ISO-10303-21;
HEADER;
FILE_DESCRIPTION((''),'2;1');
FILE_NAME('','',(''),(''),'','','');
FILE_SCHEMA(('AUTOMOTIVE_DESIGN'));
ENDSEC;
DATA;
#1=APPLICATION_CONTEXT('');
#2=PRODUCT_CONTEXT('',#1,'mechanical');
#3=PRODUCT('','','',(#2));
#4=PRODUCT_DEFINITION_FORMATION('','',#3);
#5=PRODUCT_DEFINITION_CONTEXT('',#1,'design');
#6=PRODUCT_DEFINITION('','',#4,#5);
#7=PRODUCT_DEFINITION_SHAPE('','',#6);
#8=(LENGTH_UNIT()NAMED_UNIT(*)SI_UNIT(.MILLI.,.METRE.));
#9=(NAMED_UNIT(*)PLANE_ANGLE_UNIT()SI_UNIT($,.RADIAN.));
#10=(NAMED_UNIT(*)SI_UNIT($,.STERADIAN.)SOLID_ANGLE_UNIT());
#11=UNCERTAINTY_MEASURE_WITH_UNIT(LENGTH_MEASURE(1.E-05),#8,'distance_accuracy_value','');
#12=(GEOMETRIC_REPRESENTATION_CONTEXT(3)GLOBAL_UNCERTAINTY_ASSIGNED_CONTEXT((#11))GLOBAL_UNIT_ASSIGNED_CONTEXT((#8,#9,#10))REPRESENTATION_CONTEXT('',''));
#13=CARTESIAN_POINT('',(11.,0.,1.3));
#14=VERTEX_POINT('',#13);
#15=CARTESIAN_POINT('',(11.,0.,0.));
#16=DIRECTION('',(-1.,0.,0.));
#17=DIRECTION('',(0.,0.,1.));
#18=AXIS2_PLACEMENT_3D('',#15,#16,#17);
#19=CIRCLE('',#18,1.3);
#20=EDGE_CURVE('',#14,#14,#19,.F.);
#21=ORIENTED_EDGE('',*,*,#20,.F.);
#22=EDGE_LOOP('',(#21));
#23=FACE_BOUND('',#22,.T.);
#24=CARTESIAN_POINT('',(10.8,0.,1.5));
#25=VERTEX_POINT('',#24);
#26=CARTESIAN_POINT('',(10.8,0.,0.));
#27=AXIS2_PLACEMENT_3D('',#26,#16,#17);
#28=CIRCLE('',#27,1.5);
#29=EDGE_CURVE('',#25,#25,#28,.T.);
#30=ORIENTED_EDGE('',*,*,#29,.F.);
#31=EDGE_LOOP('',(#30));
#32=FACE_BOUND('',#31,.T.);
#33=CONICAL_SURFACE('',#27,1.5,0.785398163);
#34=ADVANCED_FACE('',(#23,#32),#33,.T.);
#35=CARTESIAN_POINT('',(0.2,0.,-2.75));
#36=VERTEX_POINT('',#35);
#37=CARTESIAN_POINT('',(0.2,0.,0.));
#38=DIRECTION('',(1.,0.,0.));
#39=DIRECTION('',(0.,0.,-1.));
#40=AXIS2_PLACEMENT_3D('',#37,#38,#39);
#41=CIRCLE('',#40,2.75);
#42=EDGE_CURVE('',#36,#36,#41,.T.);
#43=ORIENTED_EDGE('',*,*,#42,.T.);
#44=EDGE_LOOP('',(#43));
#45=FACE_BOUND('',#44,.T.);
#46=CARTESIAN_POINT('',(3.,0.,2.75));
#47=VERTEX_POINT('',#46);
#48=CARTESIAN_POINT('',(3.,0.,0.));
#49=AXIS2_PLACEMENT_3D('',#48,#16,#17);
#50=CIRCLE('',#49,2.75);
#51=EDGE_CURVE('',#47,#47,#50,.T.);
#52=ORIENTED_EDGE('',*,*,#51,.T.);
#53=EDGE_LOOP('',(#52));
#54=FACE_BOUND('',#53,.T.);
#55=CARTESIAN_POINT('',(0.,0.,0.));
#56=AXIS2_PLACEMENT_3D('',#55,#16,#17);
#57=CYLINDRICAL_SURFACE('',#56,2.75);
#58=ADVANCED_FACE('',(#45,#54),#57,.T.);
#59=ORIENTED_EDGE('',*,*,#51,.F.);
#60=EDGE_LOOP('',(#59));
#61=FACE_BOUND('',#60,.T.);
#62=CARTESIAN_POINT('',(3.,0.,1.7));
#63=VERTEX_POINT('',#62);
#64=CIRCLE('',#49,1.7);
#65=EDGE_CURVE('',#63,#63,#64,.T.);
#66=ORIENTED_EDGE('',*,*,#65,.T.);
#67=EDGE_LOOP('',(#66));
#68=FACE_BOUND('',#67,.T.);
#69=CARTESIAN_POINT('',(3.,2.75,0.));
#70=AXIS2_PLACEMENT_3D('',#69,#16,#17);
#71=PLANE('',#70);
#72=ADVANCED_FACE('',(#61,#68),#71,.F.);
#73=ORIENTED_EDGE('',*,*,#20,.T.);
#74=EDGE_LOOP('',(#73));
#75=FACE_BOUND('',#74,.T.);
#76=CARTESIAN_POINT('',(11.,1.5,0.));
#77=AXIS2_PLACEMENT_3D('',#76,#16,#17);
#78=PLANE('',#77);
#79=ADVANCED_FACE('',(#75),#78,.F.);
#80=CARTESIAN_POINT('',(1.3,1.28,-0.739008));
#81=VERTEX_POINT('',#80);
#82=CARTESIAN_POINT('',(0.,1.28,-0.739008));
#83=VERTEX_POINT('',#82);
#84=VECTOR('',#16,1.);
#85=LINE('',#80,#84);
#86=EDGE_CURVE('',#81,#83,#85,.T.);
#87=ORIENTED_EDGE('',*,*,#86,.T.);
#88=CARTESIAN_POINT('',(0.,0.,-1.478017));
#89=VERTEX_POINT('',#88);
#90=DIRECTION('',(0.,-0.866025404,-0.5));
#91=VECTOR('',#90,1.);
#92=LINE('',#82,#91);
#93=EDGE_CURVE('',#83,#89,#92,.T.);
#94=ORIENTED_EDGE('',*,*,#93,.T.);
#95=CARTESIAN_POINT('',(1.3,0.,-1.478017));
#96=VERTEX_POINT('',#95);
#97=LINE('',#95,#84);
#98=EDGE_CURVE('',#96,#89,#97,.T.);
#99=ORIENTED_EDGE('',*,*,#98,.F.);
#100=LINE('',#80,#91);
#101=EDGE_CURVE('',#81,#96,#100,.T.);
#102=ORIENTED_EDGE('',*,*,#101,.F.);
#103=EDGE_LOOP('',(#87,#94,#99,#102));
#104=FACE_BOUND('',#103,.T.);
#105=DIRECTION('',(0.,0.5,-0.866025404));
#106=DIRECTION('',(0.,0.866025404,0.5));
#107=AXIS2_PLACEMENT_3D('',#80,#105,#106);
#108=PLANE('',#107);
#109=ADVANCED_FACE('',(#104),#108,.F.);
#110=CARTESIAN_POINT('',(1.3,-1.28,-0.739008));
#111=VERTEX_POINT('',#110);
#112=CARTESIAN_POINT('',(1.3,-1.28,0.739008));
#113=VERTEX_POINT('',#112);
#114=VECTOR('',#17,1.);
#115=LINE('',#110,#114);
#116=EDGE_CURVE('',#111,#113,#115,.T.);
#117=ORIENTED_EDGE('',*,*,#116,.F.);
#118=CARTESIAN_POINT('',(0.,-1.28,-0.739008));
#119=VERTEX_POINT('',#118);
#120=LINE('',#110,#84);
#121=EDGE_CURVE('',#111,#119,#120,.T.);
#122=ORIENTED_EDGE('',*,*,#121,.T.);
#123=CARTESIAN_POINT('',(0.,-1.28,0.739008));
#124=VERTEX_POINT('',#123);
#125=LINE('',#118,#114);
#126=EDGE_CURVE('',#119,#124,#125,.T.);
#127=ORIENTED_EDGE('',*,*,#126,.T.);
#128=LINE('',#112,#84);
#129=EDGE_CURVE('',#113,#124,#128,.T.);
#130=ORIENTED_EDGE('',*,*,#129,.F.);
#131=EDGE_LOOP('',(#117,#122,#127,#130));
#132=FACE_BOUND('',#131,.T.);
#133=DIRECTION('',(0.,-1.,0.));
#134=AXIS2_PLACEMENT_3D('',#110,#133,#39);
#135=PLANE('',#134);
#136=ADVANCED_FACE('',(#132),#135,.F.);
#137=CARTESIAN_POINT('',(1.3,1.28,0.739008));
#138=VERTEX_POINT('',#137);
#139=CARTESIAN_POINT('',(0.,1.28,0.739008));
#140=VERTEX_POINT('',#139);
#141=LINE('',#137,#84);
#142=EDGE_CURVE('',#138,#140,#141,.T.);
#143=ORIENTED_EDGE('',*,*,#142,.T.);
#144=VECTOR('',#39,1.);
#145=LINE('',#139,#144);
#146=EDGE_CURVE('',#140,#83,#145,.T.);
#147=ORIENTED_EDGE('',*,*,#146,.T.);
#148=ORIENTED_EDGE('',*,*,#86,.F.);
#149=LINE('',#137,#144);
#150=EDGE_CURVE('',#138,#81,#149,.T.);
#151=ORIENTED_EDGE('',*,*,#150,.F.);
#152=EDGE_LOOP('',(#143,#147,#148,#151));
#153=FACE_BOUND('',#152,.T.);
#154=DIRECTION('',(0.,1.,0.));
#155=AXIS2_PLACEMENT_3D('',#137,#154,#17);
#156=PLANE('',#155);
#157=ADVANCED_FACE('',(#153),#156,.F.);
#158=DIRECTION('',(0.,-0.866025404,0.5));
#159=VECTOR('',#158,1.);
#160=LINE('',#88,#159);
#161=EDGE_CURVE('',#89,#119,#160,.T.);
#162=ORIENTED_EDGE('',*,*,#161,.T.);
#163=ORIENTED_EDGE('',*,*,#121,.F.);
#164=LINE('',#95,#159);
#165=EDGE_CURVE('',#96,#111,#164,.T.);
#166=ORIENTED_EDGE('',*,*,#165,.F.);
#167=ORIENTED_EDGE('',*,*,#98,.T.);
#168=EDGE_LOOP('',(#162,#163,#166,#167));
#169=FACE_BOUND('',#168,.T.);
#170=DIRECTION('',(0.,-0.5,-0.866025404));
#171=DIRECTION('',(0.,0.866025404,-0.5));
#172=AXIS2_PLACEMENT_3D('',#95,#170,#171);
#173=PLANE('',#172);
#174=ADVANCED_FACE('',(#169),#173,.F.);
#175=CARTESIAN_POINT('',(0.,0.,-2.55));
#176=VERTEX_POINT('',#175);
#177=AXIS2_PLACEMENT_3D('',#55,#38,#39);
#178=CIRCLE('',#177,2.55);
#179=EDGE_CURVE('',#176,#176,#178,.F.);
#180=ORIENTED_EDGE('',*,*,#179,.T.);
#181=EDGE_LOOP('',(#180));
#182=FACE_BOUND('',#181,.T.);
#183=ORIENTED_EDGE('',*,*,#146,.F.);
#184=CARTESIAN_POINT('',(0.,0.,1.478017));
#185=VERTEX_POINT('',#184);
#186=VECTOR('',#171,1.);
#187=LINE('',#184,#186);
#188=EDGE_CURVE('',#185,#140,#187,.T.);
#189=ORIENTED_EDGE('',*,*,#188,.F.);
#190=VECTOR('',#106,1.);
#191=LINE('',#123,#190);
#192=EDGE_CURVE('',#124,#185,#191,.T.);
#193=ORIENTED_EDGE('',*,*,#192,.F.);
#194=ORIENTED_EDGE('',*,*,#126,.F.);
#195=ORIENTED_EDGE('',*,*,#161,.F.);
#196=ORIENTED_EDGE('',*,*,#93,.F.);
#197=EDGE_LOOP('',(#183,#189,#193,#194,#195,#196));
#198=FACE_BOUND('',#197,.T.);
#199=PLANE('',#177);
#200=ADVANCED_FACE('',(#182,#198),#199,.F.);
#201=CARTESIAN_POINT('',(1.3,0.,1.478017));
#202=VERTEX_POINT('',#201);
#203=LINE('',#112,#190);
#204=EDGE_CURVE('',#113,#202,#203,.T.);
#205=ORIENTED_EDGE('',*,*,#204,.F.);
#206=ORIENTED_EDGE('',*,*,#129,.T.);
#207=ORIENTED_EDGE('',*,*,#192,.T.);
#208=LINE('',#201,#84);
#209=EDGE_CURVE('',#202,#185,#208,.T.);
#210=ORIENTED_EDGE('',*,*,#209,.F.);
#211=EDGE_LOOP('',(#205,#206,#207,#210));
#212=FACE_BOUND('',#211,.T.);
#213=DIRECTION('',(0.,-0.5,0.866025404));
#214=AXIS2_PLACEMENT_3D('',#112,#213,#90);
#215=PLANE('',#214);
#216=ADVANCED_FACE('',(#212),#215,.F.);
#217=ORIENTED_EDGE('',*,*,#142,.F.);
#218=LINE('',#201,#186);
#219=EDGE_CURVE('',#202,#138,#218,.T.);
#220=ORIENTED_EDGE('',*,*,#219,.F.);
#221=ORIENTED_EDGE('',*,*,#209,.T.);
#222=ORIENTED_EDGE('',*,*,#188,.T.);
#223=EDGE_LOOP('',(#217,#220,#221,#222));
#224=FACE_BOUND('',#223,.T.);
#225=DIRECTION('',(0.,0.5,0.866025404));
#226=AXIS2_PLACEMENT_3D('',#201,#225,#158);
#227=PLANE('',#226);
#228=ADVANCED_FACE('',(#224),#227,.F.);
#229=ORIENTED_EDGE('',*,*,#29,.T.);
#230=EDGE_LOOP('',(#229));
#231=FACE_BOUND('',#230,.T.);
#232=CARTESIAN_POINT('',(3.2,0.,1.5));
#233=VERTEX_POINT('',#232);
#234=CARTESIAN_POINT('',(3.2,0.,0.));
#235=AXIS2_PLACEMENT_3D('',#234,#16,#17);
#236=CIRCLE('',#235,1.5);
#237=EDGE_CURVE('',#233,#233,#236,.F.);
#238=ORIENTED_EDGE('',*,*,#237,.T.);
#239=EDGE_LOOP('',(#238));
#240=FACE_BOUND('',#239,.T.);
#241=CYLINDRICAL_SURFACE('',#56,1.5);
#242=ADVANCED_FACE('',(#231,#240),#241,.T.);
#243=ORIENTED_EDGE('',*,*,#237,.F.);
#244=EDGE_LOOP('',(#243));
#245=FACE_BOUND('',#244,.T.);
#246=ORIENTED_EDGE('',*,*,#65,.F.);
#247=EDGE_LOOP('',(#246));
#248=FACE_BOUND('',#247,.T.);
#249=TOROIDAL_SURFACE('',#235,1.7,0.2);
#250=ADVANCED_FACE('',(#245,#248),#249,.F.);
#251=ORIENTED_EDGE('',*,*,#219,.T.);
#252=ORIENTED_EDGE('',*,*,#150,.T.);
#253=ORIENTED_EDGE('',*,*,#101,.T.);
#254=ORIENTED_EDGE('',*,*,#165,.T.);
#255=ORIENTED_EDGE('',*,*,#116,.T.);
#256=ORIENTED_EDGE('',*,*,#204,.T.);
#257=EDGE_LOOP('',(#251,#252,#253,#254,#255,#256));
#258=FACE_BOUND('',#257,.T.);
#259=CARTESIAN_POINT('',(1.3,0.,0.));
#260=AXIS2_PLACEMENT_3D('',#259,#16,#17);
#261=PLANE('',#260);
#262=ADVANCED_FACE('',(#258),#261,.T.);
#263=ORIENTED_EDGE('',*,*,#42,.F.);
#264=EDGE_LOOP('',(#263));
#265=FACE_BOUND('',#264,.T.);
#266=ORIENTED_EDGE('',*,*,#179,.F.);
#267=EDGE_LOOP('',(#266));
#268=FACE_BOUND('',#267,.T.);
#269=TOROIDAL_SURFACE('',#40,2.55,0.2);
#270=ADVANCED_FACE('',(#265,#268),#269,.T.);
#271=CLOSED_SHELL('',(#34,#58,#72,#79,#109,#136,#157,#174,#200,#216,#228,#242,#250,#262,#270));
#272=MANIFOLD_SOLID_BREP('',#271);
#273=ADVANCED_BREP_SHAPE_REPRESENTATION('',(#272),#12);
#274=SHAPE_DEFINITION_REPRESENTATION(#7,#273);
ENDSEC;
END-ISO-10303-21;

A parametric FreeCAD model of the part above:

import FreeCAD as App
import Part
import Sketcher
from FreeCAD import Vector
Q = App.Units.Quantity


def edges_at(feature, points):
    """Names of the edges that pass closest to the given points."""
    edges = feature.Shape.Edges
    near = lambda p: min(range(len(edges)), key=lambda i: edges[i].distToShape(Part.Vertex(*p))[0])
    return sorted({f"Edge{near(p) + 1}" for p in points})

doc = App.newDocument("Part")
body = doc.addObject("PartDesign::Body", "Body")

sketch1 = doc.addObject("Sketcher::SketchObject", "Sketch")
body.addObject(sketch1)
sketch1.AttachmentSupport = (doc.XY_Plane, [""])
sketch1.MapMode = "FlatFace"
sketch1.addGeometry([
    Part.LineSegment(Vector(0, 2.75, 0), Vector(0, 0, 0)),
    Part.LineSegment(Vector(0, 0, 0), Vector(11, 0, 0)),
    Part.LineSegment(Vector(11, 0, 0), Vector(11, 1.5, 0)),
    Part.LineSegment(Vector(11, 1.5, 0), Vector(3, 1.5, 0)),
    Part.LineSegment(Vector(3, 1.5, 0), Vector(3, 2.75, 0)),
    Part.LineSegment(Vector(3, 2.75, 0), Vector(0, 2.75, 0)),
], False)
sketch1.addConstraint([
    Sketcher.Constraint("Coincident", 0, 2, 1, 1),
    Sketcher.Constraint("Coincident", 1, 2, 2, 1),
    Sketcher.Constraint("Coincident", 2, 2, 3, 1),
    Sketcher.Constraint("Coincident", 3, 2, 4, 1),
    Sketcher.Constraint("Coincident", 4, 2, 5, 1),
    Sketcher.Constraint("Coincident", 5, 2, 0, 1),
    Sketcher.Constraint("Vertical", 0),
    Sketcher.Constraint("Horizontal", 1),
    Sketcher.Constraint("Vertical", 2),
    Sketcher.Constraint("Horizontal", 3),
    Sketcher.Constraint("Vertical", 4),
    Sketcher.Constraint("Horizontal", 5),
    Sketcher.Constraint("Coincident", 0, 2, -1, 1),
    Sketcher.Constraint("DistanceX", 1, 1, 1, 2, Q("11 mm")),
    Sketcher.Constraint("DistanceX", 3, 2, 3, 1, Q("8 mm")),
    Sketcher.Constraint("DistanceY", 2, 1, 2, 2, Q("1.5 mm")),
    Sketcher.Constraint("DistanceY", 0, 2, 0, 1, Q("2.75 mm")),
])
revolution = doc.addObject("PartDesign::Revolution", "Revolution")
body.addObject(revolution)
revolution.Profile = sketch1
revolution.ReferenceAxis = (sketch1, ["H_Axis"])
revolution.Angle = 360
doc.recompute()

chamfer = doc.addObject("PartDesign::Chamfer", "Chamfer")
body.addObject(chamfer)
chamfer.Base = (revolution, edges_at(revolution, [(11, -1.5, 0)]))
chamfer.Size = 0.2
doc.recompute()

fillet = doc.addObject("PartDesign::Fillet", "Fillet")
body.addObject(fillet)
fillet.Base = (chamfer, edges_at(chamfer, [(3, -1.5, 0), (0, -2.75, 0)]))
fillet.Radius = 0.2

sketch2 = doc.addObject("Sketcher::SketchObject", "Sketch001")
body.addObject(sketch2)
sketch2.AttachmentSupport = (doc.YZ_Plane, [""])
sketch2.MapMode = "FlatFace"
sketch2.addGeometry([
    Part.LineSegment(Vector(-1.28, 0.739008, 0), Vector(0, 1.478017, 0)),
    Part.LineSegment(Vector(0, 1.478017, 0), Vector(1.28, 0.739008, 0)),
    Part.LineSegment(Vector(1.28, 0.739008, 0), Vector(1.28, -0.739008, 0)),
    Part.LineSegment(Vector(1.28, -0.739008, 0), Vector(0, -1.478017, 0)),
    Part.LineSegment(Vector(0, -1.478017, 0), Vector(-1.28, -0.739008, 0)),
    Part.LineSegment(Vector(-1.28, -0.739008, 0), Vector(-1.28, 0.739008, 0)),
], False)
sketch2.addConstraint([
    Sketcher.Constraint("Coincident", 0, 2, 1, 1),
    Sketcher.Constraint("Coincident", 1, 2, 2, 1),
    Sketcher.Constraint("Coincident", 2, 2, 3, 1),
    Sketcher.Constraint("Coincident", 3, 2, 4, 1),
    Sketcher.Constraint("Coincident", 4, 2, 5, 1),
    Sketcher.Constraint("Coincident", 5, 2, 0, 1),
    Sketcher.Constraint("Vertical", 2),
    Sketcher.Constraint("Vertical", 5),
    Sketcher.Constraint("Symmetric", 0, 2, 3, 2, -1, 1),
    Sketcher.Constraint("Symmetric", 1, 2, 4, 2, -1, 1),
    Sketcher.Constraint("PointOnObject", 0, 2, -2),
    Sketcher.Constraint("Parallel", 0, 3),
    Sketcher.Constraint("Horizontal", 2, 2, 4, 2),
    Sketcher.Constraint("Angle", 0, Q("30 deg")),
    Sketcher.Constraint("DistanceX", -1, 1, 1, 2, Q("1.28 mm")),
    Sketcher.Constraint("DistanceY", 2, 2, 2, 1, Q("1.478017 mm")),
])
pocket1 = doc.addObject("PartDesign::Pocket", "Pocket")
body.addObject(pocket1)
pocket1.Profile = sketch2
pocket1.Length = 1.3
pocket1.Reversed = True

doc.recompute()
